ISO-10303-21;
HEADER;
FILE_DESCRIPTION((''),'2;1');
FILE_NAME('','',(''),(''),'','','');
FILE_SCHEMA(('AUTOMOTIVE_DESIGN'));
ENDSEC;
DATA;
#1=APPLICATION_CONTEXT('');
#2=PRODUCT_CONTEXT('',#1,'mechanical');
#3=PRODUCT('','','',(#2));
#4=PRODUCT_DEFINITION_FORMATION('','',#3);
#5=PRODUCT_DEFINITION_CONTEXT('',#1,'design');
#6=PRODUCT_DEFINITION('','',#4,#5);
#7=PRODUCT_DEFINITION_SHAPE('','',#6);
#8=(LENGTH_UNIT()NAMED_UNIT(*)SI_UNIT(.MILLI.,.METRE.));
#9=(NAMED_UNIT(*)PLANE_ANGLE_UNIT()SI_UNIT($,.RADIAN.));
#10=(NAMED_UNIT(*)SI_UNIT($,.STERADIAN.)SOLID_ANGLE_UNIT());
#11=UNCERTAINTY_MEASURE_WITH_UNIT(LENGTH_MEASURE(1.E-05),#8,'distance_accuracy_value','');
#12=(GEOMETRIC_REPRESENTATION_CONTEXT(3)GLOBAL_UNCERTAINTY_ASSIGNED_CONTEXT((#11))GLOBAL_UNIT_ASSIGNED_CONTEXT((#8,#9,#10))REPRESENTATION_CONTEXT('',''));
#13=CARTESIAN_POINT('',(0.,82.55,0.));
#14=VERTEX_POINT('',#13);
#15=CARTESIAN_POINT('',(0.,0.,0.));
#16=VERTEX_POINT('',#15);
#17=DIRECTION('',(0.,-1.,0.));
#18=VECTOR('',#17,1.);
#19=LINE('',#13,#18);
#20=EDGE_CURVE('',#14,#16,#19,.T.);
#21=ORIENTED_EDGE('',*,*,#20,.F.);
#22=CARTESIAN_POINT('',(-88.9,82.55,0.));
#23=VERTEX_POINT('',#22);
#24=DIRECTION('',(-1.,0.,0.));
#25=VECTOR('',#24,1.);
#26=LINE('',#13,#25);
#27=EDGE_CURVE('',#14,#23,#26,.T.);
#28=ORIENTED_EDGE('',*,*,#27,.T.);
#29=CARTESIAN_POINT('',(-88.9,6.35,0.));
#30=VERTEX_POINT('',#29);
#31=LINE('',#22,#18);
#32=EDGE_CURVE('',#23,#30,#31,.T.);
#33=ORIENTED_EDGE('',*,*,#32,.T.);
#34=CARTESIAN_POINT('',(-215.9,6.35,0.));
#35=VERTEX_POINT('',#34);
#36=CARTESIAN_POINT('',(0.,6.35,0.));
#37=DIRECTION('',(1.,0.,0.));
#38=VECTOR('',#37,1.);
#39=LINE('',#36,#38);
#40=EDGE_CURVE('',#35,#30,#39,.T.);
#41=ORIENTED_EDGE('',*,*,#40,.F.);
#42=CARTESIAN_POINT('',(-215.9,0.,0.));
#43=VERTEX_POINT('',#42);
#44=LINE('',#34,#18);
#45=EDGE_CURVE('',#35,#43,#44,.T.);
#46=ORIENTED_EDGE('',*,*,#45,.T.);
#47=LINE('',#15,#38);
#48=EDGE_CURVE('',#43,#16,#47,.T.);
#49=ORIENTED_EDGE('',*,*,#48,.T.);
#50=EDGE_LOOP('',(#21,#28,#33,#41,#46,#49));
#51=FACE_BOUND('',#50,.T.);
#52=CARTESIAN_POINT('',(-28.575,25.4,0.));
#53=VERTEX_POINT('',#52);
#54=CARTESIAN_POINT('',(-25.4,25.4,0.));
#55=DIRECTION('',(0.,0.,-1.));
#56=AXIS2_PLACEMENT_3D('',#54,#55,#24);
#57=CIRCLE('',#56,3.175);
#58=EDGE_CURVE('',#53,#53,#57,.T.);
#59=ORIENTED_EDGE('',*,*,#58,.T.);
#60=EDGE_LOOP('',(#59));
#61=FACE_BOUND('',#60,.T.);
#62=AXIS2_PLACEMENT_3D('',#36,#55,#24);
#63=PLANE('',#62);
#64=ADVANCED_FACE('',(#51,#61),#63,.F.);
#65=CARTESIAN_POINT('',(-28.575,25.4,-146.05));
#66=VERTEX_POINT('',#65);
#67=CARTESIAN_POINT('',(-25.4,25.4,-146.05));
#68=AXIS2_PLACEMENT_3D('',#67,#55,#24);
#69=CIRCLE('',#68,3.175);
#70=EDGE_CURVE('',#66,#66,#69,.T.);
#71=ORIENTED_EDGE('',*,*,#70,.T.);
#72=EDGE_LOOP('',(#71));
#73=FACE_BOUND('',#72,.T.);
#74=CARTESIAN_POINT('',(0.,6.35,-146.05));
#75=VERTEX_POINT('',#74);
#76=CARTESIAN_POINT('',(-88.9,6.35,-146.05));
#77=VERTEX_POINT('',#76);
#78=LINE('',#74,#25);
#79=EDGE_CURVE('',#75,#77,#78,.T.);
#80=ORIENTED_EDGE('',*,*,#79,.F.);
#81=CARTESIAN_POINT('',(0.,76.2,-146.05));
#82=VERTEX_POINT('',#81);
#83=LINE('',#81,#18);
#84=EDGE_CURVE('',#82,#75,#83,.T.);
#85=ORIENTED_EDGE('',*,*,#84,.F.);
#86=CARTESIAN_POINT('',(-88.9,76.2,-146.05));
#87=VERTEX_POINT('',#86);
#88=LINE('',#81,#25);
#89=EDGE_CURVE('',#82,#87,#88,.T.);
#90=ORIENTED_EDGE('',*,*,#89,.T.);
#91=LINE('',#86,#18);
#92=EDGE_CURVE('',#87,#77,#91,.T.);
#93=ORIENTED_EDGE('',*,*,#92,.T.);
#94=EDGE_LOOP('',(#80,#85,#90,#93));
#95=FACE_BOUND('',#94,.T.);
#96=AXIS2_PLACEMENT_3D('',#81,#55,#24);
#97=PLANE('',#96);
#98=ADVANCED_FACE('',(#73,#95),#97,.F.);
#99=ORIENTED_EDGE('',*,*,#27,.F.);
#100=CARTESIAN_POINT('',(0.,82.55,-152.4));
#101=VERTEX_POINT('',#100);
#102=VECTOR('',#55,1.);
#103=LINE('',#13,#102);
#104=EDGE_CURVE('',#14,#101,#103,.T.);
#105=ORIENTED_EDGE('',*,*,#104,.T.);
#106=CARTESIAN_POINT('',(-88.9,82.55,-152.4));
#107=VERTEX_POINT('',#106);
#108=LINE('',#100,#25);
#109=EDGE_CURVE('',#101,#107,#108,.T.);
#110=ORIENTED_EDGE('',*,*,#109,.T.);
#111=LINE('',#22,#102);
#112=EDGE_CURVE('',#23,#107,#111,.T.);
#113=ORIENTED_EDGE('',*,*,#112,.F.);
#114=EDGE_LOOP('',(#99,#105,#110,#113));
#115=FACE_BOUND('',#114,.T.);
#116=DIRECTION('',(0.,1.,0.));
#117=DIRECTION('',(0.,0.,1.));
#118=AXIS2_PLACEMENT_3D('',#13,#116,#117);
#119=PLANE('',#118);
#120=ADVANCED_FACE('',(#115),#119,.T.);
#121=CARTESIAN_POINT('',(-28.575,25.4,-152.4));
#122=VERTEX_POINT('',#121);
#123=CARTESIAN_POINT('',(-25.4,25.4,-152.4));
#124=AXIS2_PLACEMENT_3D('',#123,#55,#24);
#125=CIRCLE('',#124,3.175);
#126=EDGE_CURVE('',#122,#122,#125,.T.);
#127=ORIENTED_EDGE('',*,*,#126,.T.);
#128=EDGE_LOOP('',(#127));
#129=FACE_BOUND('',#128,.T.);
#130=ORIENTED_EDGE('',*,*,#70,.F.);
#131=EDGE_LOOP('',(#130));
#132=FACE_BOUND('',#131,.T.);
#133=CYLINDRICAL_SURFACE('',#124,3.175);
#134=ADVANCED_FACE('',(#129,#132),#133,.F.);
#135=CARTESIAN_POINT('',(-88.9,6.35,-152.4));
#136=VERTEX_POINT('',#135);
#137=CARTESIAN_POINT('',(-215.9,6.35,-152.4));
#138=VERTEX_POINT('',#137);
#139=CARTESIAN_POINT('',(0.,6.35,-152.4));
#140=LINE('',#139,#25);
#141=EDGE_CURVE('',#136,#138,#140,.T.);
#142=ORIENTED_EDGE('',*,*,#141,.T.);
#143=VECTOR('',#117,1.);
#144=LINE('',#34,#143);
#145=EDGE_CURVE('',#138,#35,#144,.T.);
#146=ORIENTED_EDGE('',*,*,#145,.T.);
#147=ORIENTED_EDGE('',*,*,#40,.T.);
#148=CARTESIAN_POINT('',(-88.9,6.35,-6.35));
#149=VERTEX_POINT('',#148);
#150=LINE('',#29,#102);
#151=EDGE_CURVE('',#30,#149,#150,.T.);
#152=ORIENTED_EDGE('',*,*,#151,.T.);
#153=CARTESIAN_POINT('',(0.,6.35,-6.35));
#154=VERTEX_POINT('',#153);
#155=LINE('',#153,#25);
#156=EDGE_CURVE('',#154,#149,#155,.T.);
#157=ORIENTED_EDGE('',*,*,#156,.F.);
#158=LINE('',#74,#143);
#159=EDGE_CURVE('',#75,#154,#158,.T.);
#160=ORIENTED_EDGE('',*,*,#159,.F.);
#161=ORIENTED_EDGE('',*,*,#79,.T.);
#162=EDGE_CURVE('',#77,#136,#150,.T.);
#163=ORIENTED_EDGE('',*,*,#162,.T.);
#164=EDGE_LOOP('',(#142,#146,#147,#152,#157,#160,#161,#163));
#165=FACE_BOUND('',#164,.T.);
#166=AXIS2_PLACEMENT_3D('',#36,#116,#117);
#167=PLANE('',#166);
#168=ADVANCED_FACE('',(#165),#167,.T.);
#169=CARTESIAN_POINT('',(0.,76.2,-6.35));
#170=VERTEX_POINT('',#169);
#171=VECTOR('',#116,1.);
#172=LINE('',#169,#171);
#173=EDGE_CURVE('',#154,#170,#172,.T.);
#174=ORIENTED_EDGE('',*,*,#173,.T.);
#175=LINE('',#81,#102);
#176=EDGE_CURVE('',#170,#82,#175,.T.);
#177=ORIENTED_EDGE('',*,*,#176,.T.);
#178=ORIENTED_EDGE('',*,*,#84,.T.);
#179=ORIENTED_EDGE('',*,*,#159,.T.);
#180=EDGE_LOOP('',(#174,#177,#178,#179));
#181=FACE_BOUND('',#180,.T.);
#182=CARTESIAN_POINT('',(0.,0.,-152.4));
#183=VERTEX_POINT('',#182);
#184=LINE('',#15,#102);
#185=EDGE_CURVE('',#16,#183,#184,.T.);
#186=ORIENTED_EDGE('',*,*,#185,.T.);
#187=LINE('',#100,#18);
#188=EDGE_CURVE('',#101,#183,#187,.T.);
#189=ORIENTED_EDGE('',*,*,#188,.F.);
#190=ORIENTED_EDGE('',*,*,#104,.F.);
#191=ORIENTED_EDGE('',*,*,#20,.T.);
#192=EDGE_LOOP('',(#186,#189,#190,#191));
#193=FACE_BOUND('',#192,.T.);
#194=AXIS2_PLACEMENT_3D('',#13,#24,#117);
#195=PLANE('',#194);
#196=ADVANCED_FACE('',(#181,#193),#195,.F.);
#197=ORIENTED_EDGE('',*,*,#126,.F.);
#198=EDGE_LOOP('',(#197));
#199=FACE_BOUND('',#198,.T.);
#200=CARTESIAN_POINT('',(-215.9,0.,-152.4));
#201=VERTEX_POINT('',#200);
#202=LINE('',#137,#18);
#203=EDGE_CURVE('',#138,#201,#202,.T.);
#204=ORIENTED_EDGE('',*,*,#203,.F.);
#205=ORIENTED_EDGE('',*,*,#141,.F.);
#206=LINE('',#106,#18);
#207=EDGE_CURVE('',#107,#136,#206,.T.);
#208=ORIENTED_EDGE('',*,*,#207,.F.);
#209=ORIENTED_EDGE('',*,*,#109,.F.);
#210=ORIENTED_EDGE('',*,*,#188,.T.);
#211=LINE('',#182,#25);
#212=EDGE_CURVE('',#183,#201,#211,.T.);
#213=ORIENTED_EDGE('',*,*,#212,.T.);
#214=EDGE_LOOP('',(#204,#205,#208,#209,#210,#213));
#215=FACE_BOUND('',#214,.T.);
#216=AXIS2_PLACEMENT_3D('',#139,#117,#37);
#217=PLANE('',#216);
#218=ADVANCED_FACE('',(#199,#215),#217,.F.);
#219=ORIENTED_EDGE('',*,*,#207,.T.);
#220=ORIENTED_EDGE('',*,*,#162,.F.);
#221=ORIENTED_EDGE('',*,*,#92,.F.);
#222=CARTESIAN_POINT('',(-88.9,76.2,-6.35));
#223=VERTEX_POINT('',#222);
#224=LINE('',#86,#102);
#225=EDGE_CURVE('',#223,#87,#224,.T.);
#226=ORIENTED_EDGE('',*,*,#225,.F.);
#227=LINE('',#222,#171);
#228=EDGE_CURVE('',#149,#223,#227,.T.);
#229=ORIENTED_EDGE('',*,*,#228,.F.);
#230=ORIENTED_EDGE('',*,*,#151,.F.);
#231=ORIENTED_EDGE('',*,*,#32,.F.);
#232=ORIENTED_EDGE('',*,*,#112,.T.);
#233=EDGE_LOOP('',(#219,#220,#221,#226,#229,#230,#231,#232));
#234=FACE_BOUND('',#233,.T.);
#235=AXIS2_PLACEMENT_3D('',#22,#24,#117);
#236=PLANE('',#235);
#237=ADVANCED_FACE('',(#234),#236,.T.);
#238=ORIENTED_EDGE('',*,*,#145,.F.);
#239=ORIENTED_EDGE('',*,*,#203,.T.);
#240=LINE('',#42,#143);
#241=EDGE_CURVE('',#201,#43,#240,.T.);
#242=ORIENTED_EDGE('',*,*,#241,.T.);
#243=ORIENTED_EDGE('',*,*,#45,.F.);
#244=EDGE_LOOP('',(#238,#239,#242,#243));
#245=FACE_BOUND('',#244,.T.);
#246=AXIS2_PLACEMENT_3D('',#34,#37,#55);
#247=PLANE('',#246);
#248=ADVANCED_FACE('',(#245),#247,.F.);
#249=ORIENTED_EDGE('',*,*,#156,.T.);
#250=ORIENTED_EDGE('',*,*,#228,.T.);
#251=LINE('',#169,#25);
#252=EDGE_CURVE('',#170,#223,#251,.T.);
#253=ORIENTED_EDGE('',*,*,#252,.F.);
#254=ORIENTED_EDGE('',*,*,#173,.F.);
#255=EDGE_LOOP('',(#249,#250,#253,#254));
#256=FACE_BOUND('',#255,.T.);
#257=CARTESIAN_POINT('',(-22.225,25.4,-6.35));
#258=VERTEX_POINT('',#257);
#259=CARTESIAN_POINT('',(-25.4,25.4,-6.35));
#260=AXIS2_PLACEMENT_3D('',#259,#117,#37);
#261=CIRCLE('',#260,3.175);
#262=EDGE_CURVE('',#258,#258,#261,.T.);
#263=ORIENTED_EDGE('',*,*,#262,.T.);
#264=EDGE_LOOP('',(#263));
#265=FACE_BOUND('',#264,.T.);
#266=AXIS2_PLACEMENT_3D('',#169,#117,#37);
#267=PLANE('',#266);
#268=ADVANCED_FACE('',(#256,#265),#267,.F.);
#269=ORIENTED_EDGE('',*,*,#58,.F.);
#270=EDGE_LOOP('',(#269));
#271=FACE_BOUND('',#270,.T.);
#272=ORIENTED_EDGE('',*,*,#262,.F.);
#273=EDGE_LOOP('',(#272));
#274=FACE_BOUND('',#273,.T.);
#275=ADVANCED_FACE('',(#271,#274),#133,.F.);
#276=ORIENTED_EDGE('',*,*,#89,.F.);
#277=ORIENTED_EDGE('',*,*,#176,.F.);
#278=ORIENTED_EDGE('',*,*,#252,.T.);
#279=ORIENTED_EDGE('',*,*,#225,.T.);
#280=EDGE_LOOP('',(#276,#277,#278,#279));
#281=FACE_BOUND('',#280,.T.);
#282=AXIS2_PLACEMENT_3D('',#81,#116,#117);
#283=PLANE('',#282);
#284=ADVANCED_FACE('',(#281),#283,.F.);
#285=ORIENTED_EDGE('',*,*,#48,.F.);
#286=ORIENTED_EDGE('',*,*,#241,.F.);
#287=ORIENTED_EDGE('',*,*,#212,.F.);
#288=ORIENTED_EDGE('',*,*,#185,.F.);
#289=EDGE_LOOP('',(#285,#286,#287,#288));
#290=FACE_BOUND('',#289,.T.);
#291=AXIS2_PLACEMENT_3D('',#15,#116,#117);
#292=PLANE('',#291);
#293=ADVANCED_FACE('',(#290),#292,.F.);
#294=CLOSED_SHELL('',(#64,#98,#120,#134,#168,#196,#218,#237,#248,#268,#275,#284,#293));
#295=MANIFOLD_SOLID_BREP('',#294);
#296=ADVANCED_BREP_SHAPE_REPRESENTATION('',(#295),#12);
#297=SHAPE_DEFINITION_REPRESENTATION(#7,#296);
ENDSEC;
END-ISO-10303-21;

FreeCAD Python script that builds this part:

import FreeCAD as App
import Part
import Sketcher
Q = App.Units.Quantity

doc = App.newDocument("Part")
body = doc.addObject("PartDesign::Body", "Body")

# Sketch on XZ plane
sketch1 = body.newObject("Sketcher::SketchObject", "Sketch")
sketch1.AttachmentSupport = (doc.getObject("XZ_Plane"), [""])
sketch1.MapMode = "FlatFace"
sketch1.addGeometry([
    Part.LineSegment(App.Vector(-215.9, -152.4, 0), App.Vector(-215.9, 0, 0)),
    Part.LineSegment(App.Vector(-215.9, 0, 0), App.Vector(-88.9, 0, 0)),
    Part.LineSegment(App.Vector(-88.9, 0, 0), App.Vector(-88.9, -152.4, 0)),
    Part.LineSegment(App.Vector(-88.9, -152.4, 0), App.Vector(-215.9, -152.4, 0)),
], False)
sketch1.addConstraint([
    Sketcher.Constraint("Coincident", 0, 2, 1, 1),
    Sketcher.Constraint("Coincident", 1, 2, 2, 1),
    Sketcher.Constraint("Coincident", 2, 2, 3, 1),
    Sketcher.Constraint("Coincident", 3, 2, 0, 1),
    Sketcher.Constraint("Vertical", 0),
    Sketcher.Constraint("Horizontal", 1),
    Sketcher.Constraint("Vertical", 2),
    Sketcher.Constraint("Horizontal", 3),
    Sketcher.Constraint("PointOnObject", 0, 2, -1),
    Sketcher.Constraint("DistanceX", 1, 1, 1, 2, Q("5 in")),
    Sketcher.Constraint("DistanceY", 0, 1, 0, 2, Q("6 in")),
    Sketcher.Constraint("DistanceX", 0, 2, -1, 1, Q("8.5 in")),
])
pad1 = body.newObject("PartDesign::Pad", "Pad")
pad1.Profile = sketch1
pad1.Length = Q("0.25 in")
pad1.Reversed = True

# Sketch on XZ plane
sketch2 = body.newObject("Sketcher::SketchObject", "Sketch001")
sketch2.AttachmentSupport = (doc.getObject("XZ_Plane"), [""])
sketch2.MapMode = "FlatFace"
sketch2.addGeometry([
    Part.LineSegment(App.Vector(-88.9, -152.4, 0), App.Vector(-88.9, 0, 0)),
    Part.LineSegment(App.Vector(-88.9, 0, 0), App.Vector(0, 0, 0)),
    Part.LineSegment(App.Vector(0, 0, 0), App.Vector(0, -152.4, 0)),
    Part.LineSegment(App.Vector(0, -152.4, 0), App.Vector(-88.9, -152.4, 0)),
], False)
sketch2.addConstraint([
    Sketcher.Constraint("Coincident", 0, 2, 1, 1),
    Sketcher.Constraint("Coincident", 1, 2, 2, 1),
    Sketcher.Constraint("Coincident", 2, 2, 3, 1),
    Sketcher.Constraint("Coincident", 3, 2, 0, 1),
    Sketcher.Constraint("Vertical", 0),
    Sketcher.Constraint("Horizontal", 1),
    Sketcher.Constraint("Vertical", 2),
    Sketcher.Constraint("Horizontal", 3),
    Sketcher.Constraint("Coincident", 1, 2, -1, 1),
    Sketcher.Constraint("DistanceY", 0, 1, 0, 2, Q("6 in")),
    Sketcher.Constraint("DistanceX", 1, 1, 1, 2, Q("3.5 in")),
])
pad2 = body.newObject("PartDesign::Pad", "Pad001")
pad2.Profile = sketch2
pad2.Length = Q("3.25 in")
pad2.Reversed = True

# Sketch on YZ plane
sketch3 = body.newObject("Sketcher::SketchObject", "Sketch002")
sketch3.AttachmentSupport = (doc.getObject("YZ_Plane"), [""])
sketch3.MapMode = "FlatFace"
sketch3.AttachmentOffset = App.Placement(App.Vector(0, 0, -3.5 * 25.4), App.Rotation())
sketch3.addGeometry([
    Part.LineSegment(App.Vector(76.2, -146.05, 0), App.Vector(6.35, -146.05, 0)),
    Part.LineSegment(App.Vector(6.35, -146.05, 0), App.Vector(6.35, -6.35, 0)),
    Part.LineSegment(App.Vector(6.35, -6.35, 0), App.Vector(76.2, -6.35, 0)),
    Part.LineSegment(App.Vector(76.2, -6.35, 0), App.Vector(76.2, -146.05, 0)),
], False)
sketch3.addConstraint([
    Sketcher.Constraint("Coincident", 0, 2, 1, 1),
    Sketcher.Constraint("Coincident", 1, 2, 2, 1),
    Sketcher.Constraint("Coincident", 2, 2, 3, 1),
    Sketcher.Constraint("Coincident", 3, 2, 0, 1),
    Sketcher.Constraint("Horizontal", 0),
    Sketcher.Constraint("Vertical", 1),
    Sketcher.Constraint("Horizontal", 2),
    Sketcher.Constraint("Vertical", 3),
    Sketcher.Constraint("DistanceY", 1, 1, 1, 2, Q("5.5 in")),
    Sketcher.Constraint("DistanceX", -1, 1, 2, 2, Q("3 in")),
    Sketcher.Constraint("DistanceX", 0, 2, 0, 1, Q("2.75 in")),
    Sketcher.Constraint("DistanceY", 0, 2, -1, 1, Q("5.75 in")),
])
pocket1 = body.newObject("PartDesign::Pocket", "Pocket")
pocket1.Profile = sketch3
pocket1.Type = "ThroughAll"
pocket1.Reversed = True

# Sketch on XY plane
sketch4 = body.newObject("Sketcher::SketchObject", "Sketch003")
sketch4.AttachmentSupport = (doc.getObject("XY_Plane"), [""])
sketch4.MapMode = "FlatFace"
sketch4.AttachmentOffset = App.Placement(App.Vector(0, 0, -6 * 25.4), App.Rotation())
sketch4.addGeometry(Part.Circle(App.Vector(-25.4, 25.4, 0), App.Vector(0, 0, 1), 3.175), False)
sketch4.addConstraint([
    Sketcher.Constraint("Diameter", 0, Q("0.25 in")),
    Sketcher.Constraint("DistanceX", 0, 3, -1, 1, Q("1 in")),
    Sketcher.Constraint("DistanceY", -1, 1, 0, 3, Q("1 in")),
])
doc.recompute()
hole = body.newObject("PartDesign::Hole", "Hole")
hole.Profile = sketch4
hole.ThreadType = "None"
hole.Diameter = Q("0.25 in")
hole.DepthType = "ThroughAll"
hole.Reversed = True

doc.recompute()
